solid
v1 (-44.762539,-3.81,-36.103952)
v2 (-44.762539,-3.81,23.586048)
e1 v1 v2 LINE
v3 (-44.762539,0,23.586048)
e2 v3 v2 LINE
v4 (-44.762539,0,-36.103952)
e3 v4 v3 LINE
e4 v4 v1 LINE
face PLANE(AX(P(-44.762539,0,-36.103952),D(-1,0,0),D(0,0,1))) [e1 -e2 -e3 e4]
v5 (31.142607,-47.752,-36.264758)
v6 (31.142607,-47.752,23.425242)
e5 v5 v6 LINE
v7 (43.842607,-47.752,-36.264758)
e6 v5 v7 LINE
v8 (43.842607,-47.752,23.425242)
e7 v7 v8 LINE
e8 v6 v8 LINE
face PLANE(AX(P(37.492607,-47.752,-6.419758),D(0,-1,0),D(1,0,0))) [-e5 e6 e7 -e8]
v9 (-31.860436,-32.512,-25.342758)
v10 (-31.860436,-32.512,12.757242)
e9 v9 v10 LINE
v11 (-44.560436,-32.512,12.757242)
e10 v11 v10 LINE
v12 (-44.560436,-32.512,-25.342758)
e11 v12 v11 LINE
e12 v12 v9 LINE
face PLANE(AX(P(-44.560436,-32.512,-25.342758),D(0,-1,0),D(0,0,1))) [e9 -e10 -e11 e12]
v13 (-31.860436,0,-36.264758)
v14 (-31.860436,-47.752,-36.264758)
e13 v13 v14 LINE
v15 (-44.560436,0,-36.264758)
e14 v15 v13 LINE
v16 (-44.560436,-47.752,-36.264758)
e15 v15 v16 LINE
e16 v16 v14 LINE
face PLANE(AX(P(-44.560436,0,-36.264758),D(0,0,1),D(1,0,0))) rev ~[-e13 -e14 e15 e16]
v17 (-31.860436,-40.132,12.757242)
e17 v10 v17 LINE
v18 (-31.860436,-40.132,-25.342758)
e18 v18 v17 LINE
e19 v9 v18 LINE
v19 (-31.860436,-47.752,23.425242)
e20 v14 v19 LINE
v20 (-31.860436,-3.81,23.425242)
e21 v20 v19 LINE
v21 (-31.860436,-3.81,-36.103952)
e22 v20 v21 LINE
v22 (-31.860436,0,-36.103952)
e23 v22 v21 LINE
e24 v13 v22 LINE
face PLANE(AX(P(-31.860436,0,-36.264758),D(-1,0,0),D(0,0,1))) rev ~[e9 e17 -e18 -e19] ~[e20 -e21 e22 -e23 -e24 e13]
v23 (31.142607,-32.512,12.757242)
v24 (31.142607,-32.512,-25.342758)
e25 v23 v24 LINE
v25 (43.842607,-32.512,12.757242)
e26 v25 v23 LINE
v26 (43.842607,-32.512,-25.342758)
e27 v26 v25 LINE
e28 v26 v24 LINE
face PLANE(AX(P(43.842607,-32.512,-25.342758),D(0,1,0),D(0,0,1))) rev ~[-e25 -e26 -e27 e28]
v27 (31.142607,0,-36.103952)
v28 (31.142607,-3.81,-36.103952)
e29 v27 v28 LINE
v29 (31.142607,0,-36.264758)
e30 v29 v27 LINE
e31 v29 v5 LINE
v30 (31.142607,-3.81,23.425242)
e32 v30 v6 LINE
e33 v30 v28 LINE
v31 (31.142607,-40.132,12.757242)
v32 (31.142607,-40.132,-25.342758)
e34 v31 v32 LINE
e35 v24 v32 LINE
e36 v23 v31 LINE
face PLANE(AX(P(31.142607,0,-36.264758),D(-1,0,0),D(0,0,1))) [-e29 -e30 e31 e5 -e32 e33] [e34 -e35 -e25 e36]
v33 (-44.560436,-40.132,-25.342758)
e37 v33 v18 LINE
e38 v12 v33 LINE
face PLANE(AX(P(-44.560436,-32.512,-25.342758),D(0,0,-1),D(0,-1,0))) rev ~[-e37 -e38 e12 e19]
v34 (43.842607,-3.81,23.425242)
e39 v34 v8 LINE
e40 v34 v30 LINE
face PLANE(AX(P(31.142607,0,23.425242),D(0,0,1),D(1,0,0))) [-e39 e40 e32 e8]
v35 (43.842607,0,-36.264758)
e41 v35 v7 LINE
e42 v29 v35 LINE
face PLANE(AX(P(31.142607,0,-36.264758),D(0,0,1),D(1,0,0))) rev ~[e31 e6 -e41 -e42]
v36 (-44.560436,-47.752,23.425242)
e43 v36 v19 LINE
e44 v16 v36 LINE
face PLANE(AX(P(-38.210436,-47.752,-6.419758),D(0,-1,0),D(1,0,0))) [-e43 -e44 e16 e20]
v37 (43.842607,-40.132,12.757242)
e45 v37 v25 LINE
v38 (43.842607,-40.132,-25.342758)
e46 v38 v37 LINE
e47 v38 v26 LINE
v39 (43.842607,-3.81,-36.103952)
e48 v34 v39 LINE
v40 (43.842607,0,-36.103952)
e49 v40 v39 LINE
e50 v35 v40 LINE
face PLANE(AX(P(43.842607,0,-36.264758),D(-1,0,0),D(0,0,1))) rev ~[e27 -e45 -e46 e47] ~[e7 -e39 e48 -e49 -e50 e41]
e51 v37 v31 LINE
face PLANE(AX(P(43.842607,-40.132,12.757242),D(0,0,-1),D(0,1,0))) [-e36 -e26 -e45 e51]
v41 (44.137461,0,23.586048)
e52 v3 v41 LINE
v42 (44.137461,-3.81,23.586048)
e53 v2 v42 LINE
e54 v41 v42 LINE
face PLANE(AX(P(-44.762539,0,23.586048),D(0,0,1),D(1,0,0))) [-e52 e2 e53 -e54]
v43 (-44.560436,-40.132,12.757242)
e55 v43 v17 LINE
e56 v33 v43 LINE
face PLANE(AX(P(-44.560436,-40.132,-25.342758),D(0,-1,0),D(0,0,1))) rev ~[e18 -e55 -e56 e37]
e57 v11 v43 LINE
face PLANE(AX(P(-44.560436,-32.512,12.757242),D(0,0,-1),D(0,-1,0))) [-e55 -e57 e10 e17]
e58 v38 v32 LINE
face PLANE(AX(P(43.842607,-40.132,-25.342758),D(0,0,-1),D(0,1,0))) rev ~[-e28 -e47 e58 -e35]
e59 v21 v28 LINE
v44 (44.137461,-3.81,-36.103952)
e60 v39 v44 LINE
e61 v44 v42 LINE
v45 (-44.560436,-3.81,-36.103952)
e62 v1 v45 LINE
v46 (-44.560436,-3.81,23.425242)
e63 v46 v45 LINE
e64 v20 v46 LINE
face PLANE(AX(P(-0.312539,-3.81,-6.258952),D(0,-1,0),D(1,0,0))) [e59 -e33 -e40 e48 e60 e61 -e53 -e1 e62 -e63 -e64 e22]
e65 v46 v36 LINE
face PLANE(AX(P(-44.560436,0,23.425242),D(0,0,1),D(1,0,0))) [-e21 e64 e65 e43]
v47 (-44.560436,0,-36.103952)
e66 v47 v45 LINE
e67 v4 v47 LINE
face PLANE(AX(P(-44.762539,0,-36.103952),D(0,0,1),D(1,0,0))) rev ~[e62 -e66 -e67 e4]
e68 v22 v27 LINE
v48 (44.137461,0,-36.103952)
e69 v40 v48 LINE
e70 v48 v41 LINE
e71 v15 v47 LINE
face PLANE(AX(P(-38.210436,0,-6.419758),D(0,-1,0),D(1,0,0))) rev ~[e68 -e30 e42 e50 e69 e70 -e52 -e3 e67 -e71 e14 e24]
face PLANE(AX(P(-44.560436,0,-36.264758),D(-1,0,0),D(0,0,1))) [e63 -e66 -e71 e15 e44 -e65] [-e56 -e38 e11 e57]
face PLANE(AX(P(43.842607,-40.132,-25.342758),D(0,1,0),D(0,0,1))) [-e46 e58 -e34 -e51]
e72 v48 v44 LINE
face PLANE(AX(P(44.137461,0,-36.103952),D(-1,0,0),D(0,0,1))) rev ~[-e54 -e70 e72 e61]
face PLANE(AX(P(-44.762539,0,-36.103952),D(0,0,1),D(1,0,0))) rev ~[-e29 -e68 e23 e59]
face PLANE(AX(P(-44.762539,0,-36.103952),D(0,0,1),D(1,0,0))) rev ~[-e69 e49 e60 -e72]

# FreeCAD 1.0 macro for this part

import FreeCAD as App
import Part
import Sketcher
from FreeCAD import Vector
Q = App.Units.Quantity


def add_polygon(sketch, points):
    """Adds a closed chain of lines whose ends are joined by coincident constraints."""
    first, n = sketch.GeometryCount, len(points)
    for a, b in zip(points, points[1:] + points[:1]):
        sketch.addGeometry(Part.LineSegment(App.Vector(*a, 0), App.Vector(*b, 0)), False)
    for i in range(n):
        sketch.addConstraint(Sketcher.Constraint("Coincident", first + i, 2, first + (i + 1) % n, 1))

doc = App.newDocument("Part")
body = doc.addObject("PartDesign::Body", "Body")

# Sketch on XZ plane
sketch1 = body.newObject("Sketcher::SketchObject", "Sketch")
sketch1.AttachmentSupport = (doc.getObject("XZ_Plane"), [""])
sketch1.MapMode = "FlatFace"
add_polygon(sketch1, [(-44.762539, 23.586048), (-44.762539, -36.103952), (44.137461, -36.103952), (44.137461, 23.586048)])  # lines 0-3
sketch1.addConstraint(Sketcher.Constraint("Vertical", 0))
sketch1.addConstraint(Sketcher.Constraint("Horizontal", 1))
sketch1.addConstraint(Sketcher.Constraint("Vertical", 2))
sketch1.addConstraint(Sketcher.Constraint("Horizontal", 3))
sketch1.addConstraint(Sketcher.Constraint("DistanceX", 1, 1, 1, 2, Q("3.5 in")))
sketch1.addConstraint(Sketcher.Constraint("DistanceY", 0, 2, 0, 1, Q("2.35 in")))
sketch1.addConstraint(Sketcher.Constraint("DistanceX", 0, 2, -1, 1, 44.762539))
sketch1.addConstraint(Sketcher.Constraint("DistanceY", -1, 1, 2, 2, 23.586048))
pad1 = body.newObject("PartDesign::Pad", "Pad")
pad1.Profile = sketch1
pad1.Length = Q("0.15 in")

# Sketch on XZ plane
sketch2 = body.newObject("Sketcher::SketchObject", "Sketch001")
sketch2.AttachmentSupport = (doc.getObject("XZ_Plane"), [""])
sketch2.MapMode = "FlatFace"
add_polygon(sketch2, [(-44.560436, 23.425242), (-44.560436, -36.264758), (-31.860436, -36.264758), (-31.860436, 23.425242)])  # lines 0-3
add_polygon(sketch2, [(31.142607, 23.425242), (31.142607, -36.264758), (43.842607, -36.264758), (43.842607, 23.425242)])  # lines 4-7
sketch2.addConstraint(Sketcher.Constraint("Vertical", 0))
sketch2.addConstraint(Sketcher.Constraint("Horizontal", 1))
sketch2.addConstraint(Sketcher.Constraint("Vertical", 2))
sketch2.addConstraint(Sketcher.Constraint("Horizontal", 3))
sketch2.addConstraint(Sketcher.Constraint("Vertical", 4))
sketch2.addConstraint(Sketcher.Constraint("Horizontal", 5))
sketch2.addConstraint(Sketcher.Constraint("Vertical", 6))
sketch2.addConstraint(Sketcher.Constraint("Horizontal", 7))
sketch2.addConstraint(Sketcher.Constraint("Horizontal", 1, 2, 4, 2))
sketch2.addConstraint(Sketcher.Constraint("Horizontal", 3, 2, 6, 2))
sketch2.addConstraint(Sketcher.Constraint("Equal", 3, 5))
sketch2.addConstraint(Sketcher.Constraint("DistanceX", 1, 1, 1, 2, Q("0.5 in")))
sketch2.addConstraint(Sketcher.Constraint("DistanceY", 0, 2, 0, 1, Q("2.35 in")))
sketch2.addConstraint(Sketcher.Constraint("DistanceX", 0, 2, -1, 1, 44.560436))
sketch2.addConstraint(Sketcher.Constraint("DistanceY", 0, 2, -1, 1, 36.264758))
sketch2.addConstraint(Sketcher.Constraint("DistanceX", -1, 1, 4, 2, 31.142607))
pad2 = body.newObject("PartDesign::Pad", "Pad001")
pad2.Profile = sketch2
pad2.Length = Q("1.88 in")

# Sketch on YZ plane
sketch3 = body.newObject("Sketcher::SketchObject", "Sketch002")
sketch3.AttachmentSupport = (doc.getObject("YZ_Plane"), [""])
sketch3.MapMode = "FlatFace"
sketch3.AttachmentOffset = App.Placement(Vector(0, 0, 43.842607), App.Rotation())
add_polygon(sketch3, [(-40.132, 12.757242), (-40.132, -25.342758), (-32.512, -25.342758), (-32.512, 12.757242)])  # lines 0-3
sketch3.addConstraint(Sketcher.Constraint("Vertical", 0))
sketch3.addConstraint(Sketcher.Constraint("Horizontal", 1))
sketch3.addConstraint(Sketcher.Constraint("Vertical", 2))
sketch3.addConstraint(Sketcher.Constraint("Horizontal", 3))
sketch3.addConstraint(Sketcher.Constraint("DistanceX", 1, 1, 1, 2, Q("0.3 in")))
sketch3.addConstraint(Sketcher.Constraint("DistanceY", 0, 2, 0, 1, Q("1.5 in")))
sketch3.addConstraint(Sketcher.Constraint("DistanceX", 0, 2, -1, 1, Q("1.58 in")))
sketch3.addConstraint(Sketcher.Constraint("DistanceY", 0, 2, -1, 1, 25.342758))
pocket1 = body.newObject("PartDesign::Pocket", "Pocket")
pocket1.Profile = sketch3
pocket1.Length = Q("1 in")
pocket2 = body.newObject("PartDesign::Pocket", "Pocket001")
pocket2.Profile = sketch3
pocket2.Length = Q("1 in")

# Sketch on YZ plane
sketch4 = body.newObject("Sketcher::SketchObject", "Sketch003")
sketch4.AttachmentSupport = (doc.getObject("YZ_Plane"), [""])
sketch4.MapMode = "FlatFace"
sketch4.AttachmentOffset = App.Placement(Vector(0, 0, -44.560436), App.Rotation())
add_polygon(sketch4, [(-32.512, 12.757242), (-32.512, -25.342758), (-40.132, -25.342758), (-40.132, 12.757242)])  # lines 0-3
sketch4.addConstraint(Sketcher.Constraint("Vertical", 0))
sketch4.addConstraint(Sketcher.Constraint("Horizontal", 1))
sketch4.addConstraint(Sketcher.Constraint("Vertical", 2))
sketch4.addConstraint(Sketcher.Constraint("Horizontal", 3))
sketch4.addConstraint(Sketcher.Constraint("DistanceX", 1, 2, 1, 1, Q("0.3 in")))
sketch4.addConstraint(Sketcher.Constraint("DistanceY", 0, 2, 0, 1, Q("1.5 in")))
sketch4.addConstraint(Sketcher.Constraint("DistanceX", 0, 2, -1, 1, Q("1.28 in")))
sketch4.addConstraint(Sketcher.Constraint("DistanceY", 0, 2, -1, 1, 25.342758))
pocket3 = body.newObject("PartDesign::Pocket", "Pocket002")
pocket3.Profile = sketch4
pocket3.Length = Q("1 in")
pocket3.Reversed = True
pocket4 = body.newObject("PartDesign::Pocket", "Pocket003")
pocket4.Profile = sketch4
pocket4.Length = Q("1 in")
pocket4.Reversed = True

doc.recompute()
